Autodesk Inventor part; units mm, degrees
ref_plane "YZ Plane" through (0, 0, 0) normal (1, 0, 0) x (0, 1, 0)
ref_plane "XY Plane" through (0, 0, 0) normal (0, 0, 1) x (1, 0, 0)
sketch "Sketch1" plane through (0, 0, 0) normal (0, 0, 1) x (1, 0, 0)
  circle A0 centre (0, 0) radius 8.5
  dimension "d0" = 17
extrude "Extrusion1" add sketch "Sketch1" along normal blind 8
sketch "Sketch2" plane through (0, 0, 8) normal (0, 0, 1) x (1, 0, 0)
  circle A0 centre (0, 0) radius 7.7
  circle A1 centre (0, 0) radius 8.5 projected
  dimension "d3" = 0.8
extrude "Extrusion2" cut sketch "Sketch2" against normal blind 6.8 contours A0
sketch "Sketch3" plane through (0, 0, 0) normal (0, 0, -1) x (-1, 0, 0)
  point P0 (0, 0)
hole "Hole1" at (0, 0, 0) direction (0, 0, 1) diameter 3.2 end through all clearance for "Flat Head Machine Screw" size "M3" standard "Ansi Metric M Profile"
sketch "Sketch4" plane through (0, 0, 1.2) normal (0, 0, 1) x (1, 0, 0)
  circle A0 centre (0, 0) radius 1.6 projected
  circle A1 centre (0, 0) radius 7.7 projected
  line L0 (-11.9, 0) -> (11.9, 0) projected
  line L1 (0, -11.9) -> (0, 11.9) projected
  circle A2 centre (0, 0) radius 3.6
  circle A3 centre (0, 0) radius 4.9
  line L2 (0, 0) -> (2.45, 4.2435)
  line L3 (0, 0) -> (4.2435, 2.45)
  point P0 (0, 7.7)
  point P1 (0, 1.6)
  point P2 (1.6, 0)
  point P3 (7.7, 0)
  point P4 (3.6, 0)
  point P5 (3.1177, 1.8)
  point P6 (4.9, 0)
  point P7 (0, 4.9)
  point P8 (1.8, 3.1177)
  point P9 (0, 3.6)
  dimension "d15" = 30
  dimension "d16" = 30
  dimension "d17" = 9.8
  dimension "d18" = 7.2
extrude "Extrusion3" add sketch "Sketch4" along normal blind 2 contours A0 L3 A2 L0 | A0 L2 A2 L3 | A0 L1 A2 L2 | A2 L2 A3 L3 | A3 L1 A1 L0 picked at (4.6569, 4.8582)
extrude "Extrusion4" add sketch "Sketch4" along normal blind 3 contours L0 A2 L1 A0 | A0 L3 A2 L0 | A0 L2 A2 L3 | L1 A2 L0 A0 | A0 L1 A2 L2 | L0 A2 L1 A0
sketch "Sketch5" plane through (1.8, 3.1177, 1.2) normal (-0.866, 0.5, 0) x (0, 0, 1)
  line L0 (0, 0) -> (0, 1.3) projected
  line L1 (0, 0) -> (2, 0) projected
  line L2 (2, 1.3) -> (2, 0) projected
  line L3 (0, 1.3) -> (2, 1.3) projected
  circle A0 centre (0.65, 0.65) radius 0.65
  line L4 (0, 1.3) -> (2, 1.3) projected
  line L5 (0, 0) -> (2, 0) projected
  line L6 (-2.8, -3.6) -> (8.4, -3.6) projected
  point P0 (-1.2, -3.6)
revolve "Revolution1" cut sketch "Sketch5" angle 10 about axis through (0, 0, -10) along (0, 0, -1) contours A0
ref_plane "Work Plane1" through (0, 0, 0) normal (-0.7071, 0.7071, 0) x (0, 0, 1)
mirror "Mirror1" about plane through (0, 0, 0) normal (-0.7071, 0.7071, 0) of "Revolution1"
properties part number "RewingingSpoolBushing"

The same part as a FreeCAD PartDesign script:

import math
import FreeCAD as App
import Part
import Sketcher
Q = App.Units.Quantity

doc = App.newDocument("Part")
body = doc.addObject("PartDesign::Body", "Body")

sketch1 = body.newObject("Sketcher::SketchObject", "Sketch")
sketch1.AttachmentSupport = (doc.getObject("XY_Plane"), [""])
sketch1.MapMode = "FlatFace"
sketch1.addGeometry(Part.Circle(App.Vector(0, 0, 0), App.Vector(0, 0, 1), 8), False)
sketch1.addConstraint([
    Sketcher.Constraint("Coincident", 0, 3, -1, 1),
    Sketcher.Constraint("Diameter", 0, Q("17 mm")),
])
pad1 = body.newObject("PartDesign::Pad", "Pad")
pad1.Profile = sketch1
pad1.Length = 8

sketch2 = body.newObject("Sketcher::SketchObject", "Sketch001")
sketch2.AttachmentSupport = (doc.getObject("XY_Plane"), [""])
sketch2.MapMode = "FlatFace"
sketch2.AttachmentOffset = App.Placement(App.Vector(0, 0, 8), App.Rotation())
sketch2.addGeometry(Part.Circle(App.Vector(0, 0, 0), App.Vector(0, 0, 1), 8), False)
sketch2.addConstraint([
    Sketcher.Constraint("Coincident", 0, 3, -1, 1),
    Sketcher.Constraint("Diameter", 0, Q("15.4 mm")),
])
pocket1 = body.newObject("PartDesign::Pocket", "Pocket")
pocket1.Profile = sketch2
pocket1.Length = 6.8

sketch3 = body.newObject("Sketcher::SketchObject", "Sketch002")
sketch3.AttachmentSupport = (doc.getObject("XY_Plane"), [""])
sketch3.MapMode = "FlatFace"
sketch3.addGeometry(Part.Circle(App.Vector(0, 0, 0), App.Vector(0, 0, 1), 1.6), False)
sketch3.addConstraint([
    Sketcher.Constraint("Coincident", 0, 3, -1, 1),
    Sketcher.Constraint("Diameter", 0, Q("3.2 mm")),
])
doc.recompute()
hole = body.newObject("PartDesign::Hole", "Hole")
hole.Profile = sketch3
hole.ThreadType = "None"
hole.Diameter = 3.2
hole.DepthType = "ThroughAll"
hole.Reversed = True

sketch4 = body.newObject("Sketcher::SketchObject", "Sketch003")
sketch4.AttachmentSupport = (doc.getObject("XY_Plane"), [""])
sketch4.MapMode = "FlatFace"
sketch4.AttachmentOffset = App.Placement(App.Vector(0, 0, 1.2), App.Rotation())
sketch4.addGeometry([
    Part.LineSegment(App.Vector(1.6, 0, 0), App.Vector(3.6, 0, 0)),
    Part.ArcOfCircle(Part.Circle(App.Vector(0, 0, 0), App.Vector(0, 0, 1), 3.6), math.radians(0), math.radians(30)),
    Part.LineSegment(App.Vector(3.1, 1.8, 0), App.Vector(4.2, 2.5, 0)),
    Part.ArcOfCircle(Part.Circle(App.Vector(0, 0, 0), App.Vector(0, 0, 1), 4.9), math.radians(0), math.radians(30)),
    Part.LineSegment(App.Vector(4.9, 0, 0), App.Vector(7.7, 0, 0)),
    Part.ArcOfCircle(Part.Circle(App.Vector(0, 0, 0), App.Vector(0, 0, 1), 7.7), math.radians(0), math.radians(90)),
    Part.LineSegment(App.Vector(0, 7.7, 0), App.Vector(0, 4.9, 0)),
    Part.ArcOfCircle(Part.Circle(App.Vector(0, 0, 0), App.Vector(0, 0, 1), 4.9), math.radians(60), math.radians(90)),
    Part.LineSegment(App.Vector(2.5, 4.2, 0), App.Vector(1.8, 3.1, 0)),
    Part.ArcOfCircle(Part.Circle(App.Vector(0, 0, 0), App.Vector(0, 0, 1), 3.6), math.radians(60), math.radians(90)),
    Part.LineSegment(App.Vector(0, 3.6, 0), App.Vector(0, 1.6, 0)),
    Part.ArcOfCircle(Part.Circle(App.Vector(0, 0, 0), App.Vector(0, 0, 1), 1.6), math.radians(0), math.radians(90)),
], False)
sketch4.addConstraint([
    Sketcher.Constraint("Coincident", 0, 2, 1, 1),
    Sketcher.Constraint("Coincident", 1, 2, 2, 1),
    Sketcher.Constraint("Coincident", 2, 2, 3, 2),
    Sketcher.Constraint("Coincident", 3, 1, 4, 1),
    Sketcher.Constraint("Coincident", 4, 2, 5, 1),
    Sketcher.Constraint("Coincident", 5, 2, 6, 1),
    Sketcher.Constraint("Coincident", 6, 2, 7, 2),
    Sketcher.Constraint("Coincident", 7, 1, 8, 1),
    Sketcher.Constraint("Coincident", 8, 2, 9, 1),
    Sketcher.Constraint("Coincident", 9, 2, 10, 1),
    Sketcher.Constraint("Coincident", 10, 2, 11, 2),
    Sketcher.Constraint("Coincident", 11, 1, 0, 1),
    Sketcher.Constraint("Horizontal", 0),
    Sketcher.Constraint("Horizontal", 4),
    Sketcher.Constraint("Vertical", 6),
    Sketcher.Constraint("Vertical", 10),
    Sketcher.Constraint("Coincident", 1, 3, -1, 1),
    Sketcher.Constraint("Coincident", 3, 3, -1, 1),
    Sketcher.Constraint("Coincident", 5, 3, -1, 1),
    Sketcher.Constraint("Coincident", 7, 3, -1, 1),
    Sketcher.Constraint("Coincident", 9, 3, -1, 1),
    Sketcher.Constraint("Coincident", 11, 3, -1, 1),
    Sketcher.Constraint("Equal", 3, 7),
    Sketcher.Constraint("Equal", 1, 9),
    Sketcher.Constraint("PointOnObject", 0, 2, -1),
    Sketcher.Constraint("PointOnObject", 3, 1, -1),
    Sketcher.Constraint("PointOnObject", 5, 2, -2),
    Sketcher.Constraint("PointOnObject", 9, 2, -2),
    Sketcher.Constraint("Radius", 1, Q("3.6 mm")),
    Sketcher.Constraint("Radius", 3, Q("4.9 mm")),
    Sketcher.Constraint("Angle", 2, Q("30.0001 deg")),
    Sketcher.Constraint("Radius", 5, Q("7.7 mm")),
    Sketcher.Constraint("Radius", 11, Q("1.6 mm")),
    Sketcher.Constraint("Angle", 8, Q("-120.0001 deg")),
    Sketcher.Constraint("DistanceY", -1, 1, 1, 2, Q("1.8 mm")),
    Sketcher.Constraint("DistanceX", -1, 1, 8, 2, Q("1.8 mm")),
])
pad2 = body.newObject("PartDesign::Pad", "Pad001")
pad2.Profile = sketch4
pad2.Length = 2

sketch5 = body.newObject("Sketcher::SketchObject", "Sketch004")
sketch5.AttachmentSupport = (doc.getObject("XY_Plane"), [""])
sketch5.MapMode = "FlatFace"
sketch5.AttachmentOffset = App.Placement(App.Vector(0, 0, 1.2), App.Rotation())
sketch5.addGeometry([
    Part.Circle(App.Vector(0, 0, 0), App.Vector(0, 0, 1), 3.6),
    Part.Circle(App.Vector(0, 0, 0), App.Vector(0, 0, 1), 1.6),
], False)
sketch5.addConstraint([
    Sketcher.Constraint("Coincident", 0, 3, -1, 1),
    Sketcher.Constraint("Coincident", 1, 3, -1, 1),
    Sketcher.Constraint("Diameter", 0, Q("7.2 mm")),
    Sketcher.Constraint("Diameter", 1, Q("3.2 mm")),
])
pad3 = body.newObject("PartDesign::Pad", "Pad002")
pad3.Profile = sketch5
pad3.Length = 3

sketch6 = body.newObject("Sketcher::SketchObject", "Sketch005")
sketch6.Placement = App.Placement(App.Vector(1.8, 3.1177, 1.2), App.Rotation(App.Vector(0, 0, 1), App.Vector(0.5, 0.866025404, 0), App.Vector(-0.866025404, 0.5, 0), "ZXY"))
sketch6.addGeometry(Part.Circle(App.Vector(0.7, 0.7, 0), App.Vector(0, 0, 1), 0.7), False)
sketch6.addGeometry(Part.LineSegment(App.Vector(0.7, -3.6, 0), App.Vector(-9.3, -3.6, 0)), True)
sketch6.addConstraint([
    Sketcher.Constraint("Horizontal", 1),
    Sketcher.Constraint("Vertical", 0, 3, 1, 1),
    Sketcher.Constraint("Diameter", 0, Q("1.3 mm")),
    Sketcher.Constraint("DistanceX", 1, 2, 1, 1, Q("10 mm")),
    Sketcher.Constraint("DistanceY", 1, 1, -1, 1, Q("3.6 mm")),
    Sketcher.Constraint("DistanceX", -1, 1, 0, 3, Q("0.65 mm")),
    Sketcher.Constraint("DistanceY", -1, 1, 0, 3, Q("0.65 mm")),
])
groove = body.newObject("PartDesign::Groove", "Groove")
groove.Profile = sketch6
groove.ReferenceAxis = (sketch6, ["Axis0"])
groove.Angle = 10
doc.recompute()

datumplane = body.newObject("PartDesign::Plane", "DatumPlane")
datumplane.Placement = App.Placement(App.Vector(0, 0, 0), App.Rotation(App.Vector(-0.707106781, -0.707106781, 0), App.Vector(0, 0, -1), App.Vector(0.707106781, -0.707106781, 0), "ZXY"))
mirrored = body.newObject("PartDesign::Mirrored", "Mirrored")
mirrored.Originals = [groove]
mirrored.MirrorPlane = (datumplane, [""])
body.Tip = mirrored

doc.recompute()
